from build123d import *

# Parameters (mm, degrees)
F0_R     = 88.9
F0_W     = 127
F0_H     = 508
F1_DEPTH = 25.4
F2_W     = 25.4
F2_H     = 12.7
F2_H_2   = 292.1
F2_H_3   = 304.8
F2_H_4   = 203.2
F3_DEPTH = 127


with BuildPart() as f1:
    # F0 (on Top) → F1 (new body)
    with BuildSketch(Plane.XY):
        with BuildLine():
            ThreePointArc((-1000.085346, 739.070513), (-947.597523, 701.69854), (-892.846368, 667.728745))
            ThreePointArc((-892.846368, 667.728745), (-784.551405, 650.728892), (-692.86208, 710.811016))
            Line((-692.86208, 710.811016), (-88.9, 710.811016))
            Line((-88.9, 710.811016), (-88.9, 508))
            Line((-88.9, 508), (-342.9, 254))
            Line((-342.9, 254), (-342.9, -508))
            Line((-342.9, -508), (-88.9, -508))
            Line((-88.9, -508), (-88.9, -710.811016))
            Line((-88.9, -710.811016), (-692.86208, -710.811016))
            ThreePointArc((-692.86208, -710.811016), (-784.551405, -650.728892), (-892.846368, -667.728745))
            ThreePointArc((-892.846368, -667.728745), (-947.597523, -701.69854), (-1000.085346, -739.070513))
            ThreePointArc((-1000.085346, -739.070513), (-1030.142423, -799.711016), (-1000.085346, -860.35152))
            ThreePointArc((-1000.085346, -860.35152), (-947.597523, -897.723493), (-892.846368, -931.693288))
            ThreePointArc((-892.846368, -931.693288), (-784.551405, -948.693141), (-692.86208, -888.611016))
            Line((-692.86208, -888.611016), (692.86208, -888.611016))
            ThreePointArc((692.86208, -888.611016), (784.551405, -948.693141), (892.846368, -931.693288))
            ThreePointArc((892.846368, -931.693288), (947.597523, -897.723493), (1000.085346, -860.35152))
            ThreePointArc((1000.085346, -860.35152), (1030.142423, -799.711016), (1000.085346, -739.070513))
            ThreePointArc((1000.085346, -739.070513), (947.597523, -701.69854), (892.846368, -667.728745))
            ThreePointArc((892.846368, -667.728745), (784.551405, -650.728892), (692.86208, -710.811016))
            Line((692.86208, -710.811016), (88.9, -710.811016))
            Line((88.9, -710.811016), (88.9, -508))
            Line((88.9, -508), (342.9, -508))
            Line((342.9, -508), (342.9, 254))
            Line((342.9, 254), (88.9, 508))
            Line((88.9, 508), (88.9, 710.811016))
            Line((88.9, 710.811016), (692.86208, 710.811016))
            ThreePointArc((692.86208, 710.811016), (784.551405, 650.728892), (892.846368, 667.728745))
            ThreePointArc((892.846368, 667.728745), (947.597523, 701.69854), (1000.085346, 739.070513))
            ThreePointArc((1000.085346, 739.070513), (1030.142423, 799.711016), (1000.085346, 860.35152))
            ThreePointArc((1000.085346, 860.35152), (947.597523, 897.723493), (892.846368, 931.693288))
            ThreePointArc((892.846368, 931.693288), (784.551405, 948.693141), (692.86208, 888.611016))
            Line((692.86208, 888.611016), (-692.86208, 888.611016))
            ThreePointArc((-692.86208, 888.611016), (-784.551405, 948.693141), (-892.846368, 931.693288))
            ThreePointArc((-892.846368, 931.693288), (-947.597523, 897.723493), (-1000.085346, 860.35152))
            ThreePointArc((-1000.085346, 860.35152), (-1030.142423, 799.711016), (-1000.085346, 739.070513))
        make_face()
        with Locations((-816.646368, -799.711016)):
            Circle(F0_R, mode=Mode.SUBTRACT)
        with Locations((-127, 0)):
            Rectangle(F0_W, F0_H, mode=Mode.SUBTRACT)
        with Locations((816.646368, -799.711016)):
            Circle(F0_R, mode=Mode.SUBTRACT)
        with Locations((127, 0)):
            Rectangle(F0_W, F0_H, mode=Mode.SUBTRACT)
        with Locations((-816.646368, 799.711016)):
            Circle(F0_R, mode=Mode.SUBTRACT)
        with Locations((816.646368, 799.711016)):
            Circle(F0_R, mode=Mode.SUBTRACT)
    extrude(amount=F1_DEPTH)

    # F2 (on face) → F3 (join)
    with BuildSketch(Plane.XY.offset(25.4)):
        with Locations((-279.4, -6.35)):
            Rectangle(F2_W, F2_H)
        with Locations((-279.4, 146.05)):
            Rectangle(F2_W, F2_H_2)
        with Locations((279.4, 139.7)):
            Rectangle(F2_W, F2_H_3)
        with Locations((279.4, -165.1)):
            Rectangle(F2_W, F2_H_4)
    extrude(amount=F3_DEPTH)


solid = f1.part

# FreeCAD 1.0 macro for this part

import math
import FreeCAD as App
import Part
import Sketcher
Q = App.Units.Quantity

doc = App.newDocument("Part")
params = doc.addObject("Spreadsheet::Sheet", "Params")
for row, (alias, value) in enumerate([
    ("sketch1_diameter", "7 in"),
    ("sketch1_radius", "39.9999999 in"),
    ("sketch1_radius2", "6 in"),
    ("sketch1_radius3", "3 in"),
    ("sketch1_width", "10 in"),
    ("pad1_length", "1 in"),
    ("sketch2_width", "1 in"),
    ("sketch2_height", "12 in"),
    ("sketch2_height2", "8 in"),
    ("pad2_length", "5 in"),
], start=1):
    params.set(f"A{row}", alias)
    params.set(f"B{row}", "=" + value)
    params.setAlias(f"B{row}", alias)

body = doc.addObject("PartDesign::Body", "Body")

sketch1 = body.newObject("Sketcher::SketchObject", "Sketch")
sketch1.AttachmentSupport = (doc.getObject("XY_Plane"), [""])
sketch1.MapMode = "FlatFace"
sketch1.addGeometry(Part.ArcOfCircle(Part.Circle(App.Vector(-385, 1548, 0), App.Vector(0, 0, 1), 1016), math.radians(-127.27), math.radians(-120)), False)
sketch1.addGeometry(Part.ArcOfCircle(Part.Circle(App.Vector(-817, 800, 0), App.Vector(0, 0, 1), 152), math.radians(-120), math.radians(-36)), False)
sketch1.addGeometry(Part.LineSegment(App.Vector(-693, 711, 0), App.Vector(-89, 711, 0)), False)
sketch1.addGeometry(Part.LineSegment(App.Vector(-89, 711, 0), App.Vector(-89, 508, 0)), False)
sketch1.addGeometry(Part.LineSegment(App.Vector(-89, 508, 0), App.Vector(-343, 254, 0)), False)
sketch1.addGeometry(Part.LineSegment(App.Vector(-343, 254, 0), App.Vector(-343, -508, 0)), False)
sketch1.addGeometry(Part.LineSegment(App.Vector(-343, -508, 0), App.Vector(-89, -508, 0)), False)
sketch1.addGeometry(Part.LineSegment(App.Vector(-89, -508, 0), App.Vector(-89, -711, 0)), False)
sketch1.addGeometry(Part.LineSegment(App.Vector(-89, -711, 0), App.Vector(-693, -711, 0)), False)
sketch1.addGeometry(Part.ArcOfCircle(Part.Circle(App.Vector(-817, -800, 0), App.Vector(0, 0, 1), 152), math.radians(36), math.radians(120)), False)
sketch1.addGeometry(Part.ArcOfCircle(Part.Circle(App.Vector(-385, -1548, 0), App.Vector(0, 0, 1), 1016), math.radians(120), math.radians(127.27)), False)
sketch1.addGeometry(Part.ArcOfCircle(Part.Circle(App.Vector(-954, -800, 0), App.Vector(0, 0, 1), 76), math.radians(127), math.radians(233)), False)
sketch1.addGeometry(Part.ArcOfCircle(Part.Circle(App.Vector(-385, -52, 0), App.Vector(0, 0, 1), 1016), math.radians(-127.27), math.radians(-120)), False)
sketch1.addGeometry(Part.ArcOfCircle(Part.Circle(App.Vector(-817, -800, 0), App.Vector(0, 0, 1), 152), math.radians(-120), math.radians(-36)), False)
sketch1.addGeometry(Part.LineSegment(App.Vector(-693, -889, 0), App.Vector(693, -889, 0)), False)
sketch1.addGeometry(Part.ArcOfCircle(Part.Circle(App.Vector(817, -800, 0), App.Vector(0, 0, 1), 152), math.radians(-144), math.radians(-60)), False)
sketch1.addGeometry(Part.ArcOfCircle(Part.Circle(App.Vector(385, -52, 0), App.Vector(0, 0, 1), 1016), math.radians(-60), math.radians(-52.73)), False)
sketch1.addGeometry(Part.ArcOfCircle(Part.Circle(App.Vector(954, -800, 0), App.Vector(0, 0, 1), 76), math.radians(-53), math.radians(53)), False)
sketch1.addGeometry(Part.ArcOfCircle(Part.Circle(App.Vector(385, -1548, 0), App.Vector(0, 0, 1), 1016), math.radians(52.73), math.radians(60)), False)
sketch1.addGeometry(Part.ArcOfCircle(Part.Circle(App.Vector(817, -800, 0), App.Vector(0, 0, 1), 152), math.radians(60), math.radians(144)), False)
sketch1.addGeometry(Part.LineSegment(App.Vector(693, -711, 0), App.Vector(89, -711, 0)), False)
sketch1.addGeometry(Part.LineSegment(App.Vector(89, -711, 0), App.Vector(89, -508, 0)), False)
sketch1.addGeometry(Part.LineSegment(App.Vector(89, -508, 0), App.Vector(343, -508, 0)), False)
sketch1.addGeometry(Part.LineSegment(App.Vector(343, -508, 0), App.Vector(343, 254, 0)), False)
sketch1.addGeometry(Part.LineSegment(App.Vector(343, 254, 0), App.Vector(89, 508, 0)), False)
sketch1.addGeometry(Part.LineSegment(App.Vector(89, 508, 0), App.Vector(89, 711, 0)), False)
sketch1.addGeometry(Part.LineSegment(App.Vector(89, 711, 0), App.Vector(693, 711, 0)), False)
sketch1.addGeometry(Part.ArcOfCircle(Part.Circle(App.Vector(817, 800, 0), App.Vector(0, 0, 1), 152), math.radians(-144), math.radians(-60)), False)
sketch1.addGeometry(Part.ArcOfCircle(Part.Circle(App.Vector(385, 1548, 0), App.Vector(0, 0, 1), 1016), math.radians(-60), math.radians(-52.73)), False)
sketch1.addGeometry(Part.ArcOfCircle(Part.Circle(App.Vector(954, 800, 0), App.Vector(0, 0, 1), 76), math.radians(-53), math.radians(53)), False)
sketch1.addGeometry(Part.ArcOfCircle(Part.Circle(App.Vector(385, 52, 0), App.Vector(0, 0, 1), 1016), math.radians(52.73), math.radians(60)), False)
sketch1.addGeometry(Part.ArcOfCircle(Part.Circle(App.Vector(817, 800, 0), App.Vector(0, 0, 1), 152), math.radians(60), math.radians(144)), False)
sketch1.addGeometry(Part.LineSegment(App.Vector(693, 889, 0), App.Vector(-693, 889, 0)), False)
sketch1.addGeometry(Part.ArcOfCircle(Part.Circle(App.Vector(-817, 800, 0), App.Vector(0, 0, 1), 152), math.radians(36), math.radians(120)), False)
sketch1.addGeometry(Part.ArcOfCircle(Part.Circle(App.Vector(-385, 52, 0), App.Vector(0, 0, 1), 1016), math.radians(120), math.radians(127.27)), False)
sketch1.addGeometry(Part.ArcOfCircle(Part.Circle(App.Vector(-954, 800, 0), App.Vector(0, 0, 1), 76), math.radians(127), math.radians(233)), False)
sketch1.addGeometry(Part.Circle(App.Vector(-817, -800, 0), App.Vector(0, 0, 1), 89), False)
sketch1.addGeometry(Part.Circle(App.Vector(817, -800, 0), App.Vector(0, 0, 1), 89), False)
sketch1.addGeometry(Part.LineSegment(App.Vector(-64, -254, 0), App.Vector(-190, -254, 0)), False)
sketch1.addGeometry(Part.LineSegment(App.Vector(-190, -254, 0), App.Vector(-190, 254, 0)), False)
sketch1.addGeometry(Part.LineSegment(App.Vector(-190, 254, 0), App.Vector(-64, 254, 0)), False)
sketch1.addGeometry(Part.LineSegment(App.Vector(-64, 254, 0), App.Vector(-64, -254, 0)), False)
sketch1.addGeometry(Part.Circle(App.Vector(-817, 800, 0), App.Vector(0, 0, 1), 89), False)
sketch1.addGeometry(Part.LineSegment(App.Vector(190, -254, 0), App.Vector(64, -254, 0)), False)
sketch1.addGeometry(Part.LineSegment(App.Vector(64, -254, 0), App.Vector(64, 254, 0)), False)
sketch1.addGeometry(Part.LineSegment(App.Vector(64, 254, 0), App.Vector(190, 254, 0)), False)
sketch1.addGeometry(Part.LineSegment(App.Vector(190, 254, 0), App.Vector(190, -254, 0)), False)
sketch1.addGeometry(Part.Circle(App.Vector(817, 800, 0), App.Vector(0, 0, 1), 89), False)
sketch1.addConstraint(Sketcher.Constraint("Tangent", 0, 2, 1, 1))
sketch1.addConstraint(Sketcher.Constraint("Coincident", 1, 2, 2, 1))
sketch1.addConstraint(Sketcher.Constraint("Coincident", 2, 2, 3, 1))
sketch1.addConstraint(Sketcher.Constraint("Coincident", 3, 2, 4, 1))
sketch1.addConstraint(Sketcher.Constraint("Coincident", 4, 2, 5, 1))
sketch1.addConstraint(Sketcher.Constraint("Coincident", 5, 2, 6, 1))
sketch1.addConstraint(Sketcher.Constraint("Coincident", 6, 2, 7, 1))
sketch1.addConstraint(Sketcher.Constraint("Coincident", 7, 2, 8, 1))
sketch1.addConstraint(Sketcher.Constraint("Coincident", 8, 2, 9, 1))
sketch1.addConstraint(Sketcher.Constraint("Tangent", 9, 2, 10, 1))
sketch1.addConstraint(Sketcher.Constraint("Tangent", 10, 2, 11, 1))
sketch1.addConstraint(Sketcher.Constraint("Tangent", 11, 2, 12, 1))
sketch1.addConstraint(Sketcher.Constraint("Tangent", 12, 2, 13, 1))
sketch1.addConstraint(Sketcher.Constraint("Coincident", 13, 2, 14, 1))
sketch1.addConstraint(Sketcher.Constraint("Coincident", 14, 2, 15, 1))
sketch1.addConstraint(Sketcher.Constraint("Tangent", 15, 2, 16, 1))
sketch1.addConstraint(Sketcher.Constraint("Tangent", 16, 2, 17, 1))
sketch1.addConstraint(Sketcher.Constraint("Tangent", 17, 2, 18, 1))
sketch1.addConstraint(Sketcher.Constraint("Tangent", 18, 2, 19, 1))
sketch1.addConstraint(Sketcher.Constraint("Coincident", 19, 2, 20, 1))
sketch1.addConstraint(Sketcher.Constraint("Coincident", 20, 2, 21, 1))
sketch1.addConstraint(Sketcher.Constraint("Coincident", 21, 2, 22, 1))
sketch1.addConstraint(Sketcher.Constraint("Coincident", 22, 2, 23, 1))
sketch1.addConstraint(Sketcher.Constraint("Coincident", 23, 2, 24, 1))
sketch1.addConstraint(Sketcher.Constraint("Coincident", 24, 2, 25, 1))
sketch1.addConstraint(Sketcher.Constraint("Coincident", 25, 2, 26, 1))
sketch1.addConstraint(Sketcher.Constraint("Coincident", 26, 2, 27, 1))
sketch1.addConstraint(Sketcher.Constraint("Tangent", 27, 2, 28, 1))
sketch1.addConstraint(Sketcher.Constraint("Tangent", 28, 2, 29, 1))
sketch1.addConstraint(Sketcher.Constraint("Tangent", 29, 2, 30, 1))
sketch1.addConstraint(Sketcher.Constraint("Tangent", 30, 2, 31, 1))
sketch1.addConstraint(Sketcher.Constraint("Coincident", 31, 2, 32, 1))
sketch1.addConstraint(Sketcher.Constraint("Coincident", 32, 2, 33, 1))
sketch1.addConstraint(Sketcher.Constraint("Tangent", 33, 2, 34, 1))
sketch1.addConstraint(Sketcher.Constraint("Tangent", 34, 2, 35, 1))
sketch1.addConstraint(Sketcher.Constraint("Tangent", 35, 2, 0, 1))
sketch1.addConstraint(Sketcher.Constraint("Coincident", 38, 2, 39, 1))
sketch1.addConstraint(Sketcher.Constraint("Coincident", 39, 2, 40, 1))
sketch1.addConstraint(Sketcher.Constraint("Coincident", 40, 2, 41, 1))
sketch1.addConstraint(Sketcher.Constraint("Coincident", 41, 2, 38, 1))
sketch1.addConstraint(Sketcher.Constraint("Coincident", 43, 2, 44, 1))
sketch1.addConstraint(Sketcher.Constraint("Coincident", 44, 2, 45, 1))
sketch1.addConstraint(Sketcher.Constraint("Coincident", 45, 2, 46, 1))
sketch1.addConstraint(Sketcher.Constraint("Coincident", 46, 2, 43, 1))
sketch1.addConstraint(Sketcher.Constraint("Horizontal", 2))
sketch1.addConstraint(Sketcher.Constraint("Vertical", 3))
sketch1.addConstraint(Sketcher.Constraint("Vertical", 5))
sketch1.addConstraint(Sketcher.Constraint("Horizontal", 6))
sketch1.addConstraint(Sketcher.Constraint("Vertical", 7))
sketch1.addConstraint(Sketcher.Constraint("Horizontal", 8))
sketch1.addConstraint(Sketcher.Constraint("Horizontal", 14))
sketch1.addConstraint(Sketcher.Constraint("Horizontal", 20))
sketch1.addConstraint(Sketcher.Constraint("Vertical", 21))
sketch1.addConstraint(Sketcher.Constraint("Horizontal", 22))
sketch1.addConstraint(Sketcher.Constraint("Vertical", 23))
sketch1.addConstraint(Sketcher.Constraint("Vertical", 25))
sketch1.addConstraint(Sketcher.Constraint("Horizontal", 26))
sketch1.addConstraint(Sketcher.Constraint("Horizontal", 32))
sketch1.addConstraint(Sketcher.Constraint("Horizontal", 38))
sketch1.addConstraint(Sketcher.Constraint("Vertical", 39))
sketch1.addConstraint(Sketcher.Constraint("Horizontal", 40))
sketch1.addConstraint(Sketcher.Constraint("Vertical", 41))
sketch1.addConstraint(Sketcher.Constraint("Horizontal", 43))
sketch1.addConstraint(Sketcher.Constraint("Vertical", 44))
sketch1.addConstraint(Sketcher.Constraint("Horizontal", 45))
sketch1.addConstraint(Sketcher.Constraint("Vertical", 46))
sketch1.addConstraint(Sketcher.Constraint("Coincident", 13, 3, 9, 3))
sketch1.addConstraint(Sketcher.Constraint("Coincident", 19, 3, 15, 3))
sketch1.addConstraint(Sketcher.Constraint("Coincident", 31, 3, 27, 3))
sketch1.addConstraint(Sketcher.Constraint("Coincident", 33, 3, 1, 3))
sketch1.addConstraint(Sketcher.Constraint("Coincident", 36, 3, 9, 3))
sketch1.addConstraint(Sketcher.Constraint("Coincident", 37, 3, 15, 3))
sketch1.addConstraint(Sketcher.Constraint("Coincident", 42, 3, 1, 3))
sketch1.addConstraint(Sketcher.Constraint("Coincident", 47, 3, 27, 3))
sketch1.addConstraint(Sketcher.Constraint("Equal", 1, 9))
sketch1.addConstraint(Sketcher.Constraint("Equal", 0, 10))
sketch1.addConstraint(Sketcher.Constraint("Equal", 10, 12))
sketch1.addConstraint(Sketcher.Constraint("Equal", 9, 13))
sketch1.addConstraint(Sketcher.Constraint("Equal", 13, 15))
sketch1.addConstraint(Sketcher.Constraint("Equal", 12, 16))
sketch1.addConstraint(Sketcher.Constraint("Equal", 11, 17))
sketch1.addConstraint(Sketcher.Constraint("Equal", 16, 18))
sketch1.addConstraint(Sketcher.Constraint("Equal", 15, 19))
sketch1.addConstraint(Sketcher.Constraint("Equal", 19, 27))
sketch1.addConstraint(Sketcher.Constraint("Equal", 18, 28))
sketch1.addConstraint(Sketcher.Constraint("Equal", 17, 29))
sketch1.addConstraint(Sketcher.Constraint("Equal", 28, 30))
sketch1.addConstraint(Sketcher.Constraint("Equal", 27, 31))
sketch1.addConstraint(Sketcher.Constraint("Equal", 31, 33))
sketch1.addConstraint(Sketcher.Constraint("Equal", 30, 34))
sketch1.addConstraint(Sketcher.Constraint("Equal", 29, 35))
sketch1.addConstraint(Sketcher.Constraint("Equal", 36, 37))
sketch1.addConstraint(Sketcher.Constraint("Equal", 37, 42))
sketch1.addConstraint(Sketcher.Constraint("Equal", 42, 47))
sketch1.addConstraint(Sketcher.Constraint("Symmetric", 1, 3, 15, 3, -1, 1))
sketch1.addConstraint(Sketcher.Constraint("Symmetric", 9, 3, 27, 3, -1, 1))
sketch1.addConstraint(Sketcher.Constraint("Symmetric", 11, 3, 29, 3, -1, 1))
sketch1.addConstraint(Sketcher.Constraint("Symmetric", 17, 3, 35, 3, -1, 1))
sketch1.addConstraint(Sketcher.Constraint("Symmetric", 2, 2, 20, 2, -1, 1))
sketch1.addConstraint(Sketcher.Constraint("Symmetric", 6, 2, 24, 2, -1, 1))
sketch1.addConstraint(Sketcher.Constraint("Symmetric", 40, 2, 43, 2, -1, 1))
sketch1.addConstraint(Sketcher.Constraint("Symmetric", 38, 2, 45, 2, -1, 1))
sketch1.addConstraint(Sketcher.Constraint("Symmetric", 9, 3, 15, 3, -2))
sketch1.addConstraint(Sketcher.Constraint("Symmetric", 11, 3, 17, 3, -2))
sketch1.addConstraint(Sketcher.Constraint("Symmetric", 7, 2, 20, 2, -2))
sketch1.addConstraint(Sketcher.Constraint("Symmetric", 5, 2, 22, 2, -2))
sketch1.addConstraint(Sketcher.Constraint("Perpendicular", 4, 24))
sketch1.addConstraint(Sketcher.Constraint("Horizontal", 9, 3, 11, 3))
sketch1.addConstraint(Sketcher.Constraint("Horizontal", 4, 2, 23, 2))
sketch1.addConstraint(Sketcher.Constraint("Horizontal", 3, 2, 24, 2))
sketch1.addConstraint(Sketcher.Constraint("Horizontal", 2, 2, 25, 2))
sketch1.addConstraint(Sketcher.Constraint("Horizontal", 23, 2, 39, 2))
sketch1.addConstraint(Sketcher.Constraint("Horizontal", 41, 2, 43, 2))
sketch1.addConstraint(Sketcher.Constraint("Vertical", 8, 2, 13, 2))
sketch1.addConstraint(Sketcher.Constraint("Vertical", 26, 2, 31, 2))
sketch1.addConstraint(Sketcher.Constraint("Diameter", 36, Q("7 in")))
sketch1.addConstraint(Sketcher.Constraint("Radius", 0, Q("39.9999999 in")))
sketch1.addConstraint(Sketcher.Constraint("Radius", 1, Q("6 in")))
sketch1.addConstraint(Sketcher.Constraint("Radius", 11, Q("3 in")))
sketch1.addConstraint(Sketcher.Constraint("DistanceX", 6, 1, 6, 2, Q("10 in")))
sketch1.addConstraint(Sketcher.Constraint("DistanceX", 38, 2, 38, 1, Q("5 in")))
sketch1.addConstraint(Sketcher.Constraint("DistanceY", 5, 2, 5, 1, Q("30 in")))
sketch1.addConstraint(Sketcher.Constraint("DistanceX", 2, 2, -1, 1, Q("3.5 in")))
sketch1.addConstraint(Sketcher.Constraint("DistanceX", 38, 2, -1, 1, Q("7.5 in")))
sketch1.addConstraint(Sketcher.Constraint("DistanceX", 2, 1, 2, 2, 603.96208))
sketch1.addConstraint(Sketcher.Constraint("DistanceY", 3, 2, 3, 1, 202.811016))
sketch1.addConstraint(Sketcher.Constraint("DistanceX", 0, 3, -1, 1, 384.846369))
sketch1.addConstraint(Sketcher.Constraint("DistanceY", 12, 3, -1, 1, 51.811479))
sketch1.setExpression("Constraints[115]", "Params.sketch1_diameter")
sketch1.setExpression("Constraints[116]", "Params.sketch1_radius")
sketch1.setExpression("Constraints[117]", "Params.sketch1_radius2")
sketch1.setExpression("Constraints[118]", "Params.sketch1_radius3")
sketch1.setExpression("Constraints[119]", "Params.sketch1_width")
pad1 = body.newObject("PartDesign::Pad", "Pad")
pad1.Profile = sketch1
pad1.setExpression("Length", "Params.pad1_length")

sketch2 = body.newObject("Sketcher::SketchObject", "Sketch001")
sketch2.AttachmentSupport = (doc.getObject("XY_Plane"), [""])
sketch2.MapMode = "FlatFace"
sketch2.AttachmentOffset = App.Placement(App.Vector(0, 0, 1 * 25.4), App.Rotation())
sketch2.addGeometry(Part.LineSegment(App.Vector(-292, -13, 0), App.Vector(-267, -13, 0)), False)
sketch2.addGeometry(Part.LineSegment(App.Vector(-267, -13, 0), App.Vector(-267, 292, 0)), False)
sketch2.addGeometry(Part.LineSegment(App.Vector(-267, 292, 0), App.Vector(-292, 292, 0)), False)
sketch2.addGeometry(Part.LineSegment(App.Vector(-292, 292, 0), App.Vector(-292, -13, 0)), False)
sketch2.addGeometry(Part.LineSegment(App.Vector(267, 292, 0), App.Vector(267, -13, 0)), False)
sketch2.addGeometry(Part.LineSegment(App.Vector(267, -13, 0), App.Vector(292, -13, 0)), False)
sketch2.addGeometry(Part.LineSegment(App.Vector(292, -13, 0), App.Vector(292, 292, 0)), False)
sketch2.addGeometry(Part.LineSegment(App.Vector(292, 292, 0), App.Vector(267, 292, 0)), False)
sketch2.addGeometry(Part.LineSegment(App.Vector(267, -64, 0), App.Vector(267, -267, 0)), False)
sketch2.addGeometry(Part.LineSegment(App.Vector(267, -267, 0), App.Vector(292, -267, 0)), False)
sketch2.addGeometry(Part.LineSegment(App.Vector(292, -267, 0), App.Vector(292, -64, 0)), False)
sketch2.addGeometry(Part.LineSegment(App.Vector(292, -64, 0), App.Vector(267, -64, 0)), False)
sketch2.addConstraint(Sketcher.Constraint("Coincident", 0, 2, 1, 1))
sketch2.addConstraint(Sketcher.Constraint("Coincident", 1, 2, 2, 1))
sketch2.addConstraint(Sketcher.Constraint("Coincident", 2, 2, 3, 1))
sketch2.addConstraint(Sketcher.Constraint("Coincident", 3, 2, 0, 1))
sketch2.addConstraint(Sketcher.Constraint("Coincident", 4, 2, 5, 1))
sketch2.addConstraint(Sketcher.Constraint("Coincident", 5, 2, 6, 1))
sketch2.addConstraint(Sketcher.Constraint("Coincident", 6, 2, 7, 1))
sketch2.addConstraint(Sketcher.Constraint("Coincident", 7, 2, 4, 1))
sketch2.addConstraint(Sketcher.Constraint("Coincident", 8, 2, 9, 1))
sketch2.addConstraint(Sketcher.Constraint("Coincident", 9, 2, 10, 1))
sketch2.addConstraint(Sketcher.Constraint("Coincident", 10, 2, 11, 1))
sketch2.addConstraint(Sketcher.Constraint("Coincident", 11, 2, 8, 1))
sketch2.addConstraint(Sketcher.Constraint("Horizontal", 0))
sketch2.addConstraint(Sketcher.Constraint("Vertical", 1))
sketch2.addConstraint(Sketcher.Constraint("Horizontal", 2))
sketch2.addConstraint(Sketcher.Constraint("Vertical", 3))
sketch2.addConstraint(Sketcher.Constraint("Vertical", 4))
sketch2.addConstraint(Sketcher.Constraint("Horizontal", 5))
sketch2.addConstraint(Sketcher.Constraint("Vertical", 6))
sketch2.addConstraint(Sketcher.Constraint("Horizontal", 7))
sketch2.addConstraint(Sketcher.Constraint("Vertical", 8))
sketch2.addConstraint(Sketcher.Constraint("Horizontal", 9))
sketch2.addConstraint(Sketcher.Constraint("Vertical", 10))
sketch2.addConstraint(Sketcher.Constraint("Horizontal", 11))
sketch2.addConstraint(Sketcher.Constraint("Symmetric", 0, 2, 4, 2, -2))
sketch2.addConstraint(Sketcher.Constraint("Symmetric", 2, 2, 6, 2, -2))
sketch2.addConstraint(Sketcher.Constraint("Vertical", 7, 2, 8, 2))
sketch2.addConstraint(Sketcher.Constraint("Vertical", 6, 2, 9, 2))
sketch2.addConstraint(Sketcher.Constraint("DistanceX", 0, 1, 0, 2, Q("1 in")))
sketch2.addConstraint(Sketcher.Constraint("DistanceY", 1, 1, 1, 2, Q("12 in")))
sketch2.addConstraint(Sketcher.Constraint("DistanceY", 8, 2, 8, 1, Q("8 in")))
sketch2.addConstraint(Sketcher.Constraint("DistanceX", 0, 2, 4, 2, Q("21 in")))
sketch2.addConstraint(Sketcher.Constraint("DistanceY", 8, 2, 4, 2, Q("10 in")))
sketch2.addConstraint(Sketcher.Constraint("DistanceY", 0, 2, -1, 1, Q("0.5 in")))
sketch2.setExpression("Constraints[28]", "Params.sketch2_width")
sketch2.setExpression("Constraints[29]", "Params.sketch2_height")
sketch2.setExpression("Constraints[30]", "Params.sketch2_height2")
pad2 = body.newObject("PartDesign::Pad", "Pad001")
pad2.Profile = sketch2
pad2.setExpression("Length", "Params.pad2_length")

doc.recompute()
